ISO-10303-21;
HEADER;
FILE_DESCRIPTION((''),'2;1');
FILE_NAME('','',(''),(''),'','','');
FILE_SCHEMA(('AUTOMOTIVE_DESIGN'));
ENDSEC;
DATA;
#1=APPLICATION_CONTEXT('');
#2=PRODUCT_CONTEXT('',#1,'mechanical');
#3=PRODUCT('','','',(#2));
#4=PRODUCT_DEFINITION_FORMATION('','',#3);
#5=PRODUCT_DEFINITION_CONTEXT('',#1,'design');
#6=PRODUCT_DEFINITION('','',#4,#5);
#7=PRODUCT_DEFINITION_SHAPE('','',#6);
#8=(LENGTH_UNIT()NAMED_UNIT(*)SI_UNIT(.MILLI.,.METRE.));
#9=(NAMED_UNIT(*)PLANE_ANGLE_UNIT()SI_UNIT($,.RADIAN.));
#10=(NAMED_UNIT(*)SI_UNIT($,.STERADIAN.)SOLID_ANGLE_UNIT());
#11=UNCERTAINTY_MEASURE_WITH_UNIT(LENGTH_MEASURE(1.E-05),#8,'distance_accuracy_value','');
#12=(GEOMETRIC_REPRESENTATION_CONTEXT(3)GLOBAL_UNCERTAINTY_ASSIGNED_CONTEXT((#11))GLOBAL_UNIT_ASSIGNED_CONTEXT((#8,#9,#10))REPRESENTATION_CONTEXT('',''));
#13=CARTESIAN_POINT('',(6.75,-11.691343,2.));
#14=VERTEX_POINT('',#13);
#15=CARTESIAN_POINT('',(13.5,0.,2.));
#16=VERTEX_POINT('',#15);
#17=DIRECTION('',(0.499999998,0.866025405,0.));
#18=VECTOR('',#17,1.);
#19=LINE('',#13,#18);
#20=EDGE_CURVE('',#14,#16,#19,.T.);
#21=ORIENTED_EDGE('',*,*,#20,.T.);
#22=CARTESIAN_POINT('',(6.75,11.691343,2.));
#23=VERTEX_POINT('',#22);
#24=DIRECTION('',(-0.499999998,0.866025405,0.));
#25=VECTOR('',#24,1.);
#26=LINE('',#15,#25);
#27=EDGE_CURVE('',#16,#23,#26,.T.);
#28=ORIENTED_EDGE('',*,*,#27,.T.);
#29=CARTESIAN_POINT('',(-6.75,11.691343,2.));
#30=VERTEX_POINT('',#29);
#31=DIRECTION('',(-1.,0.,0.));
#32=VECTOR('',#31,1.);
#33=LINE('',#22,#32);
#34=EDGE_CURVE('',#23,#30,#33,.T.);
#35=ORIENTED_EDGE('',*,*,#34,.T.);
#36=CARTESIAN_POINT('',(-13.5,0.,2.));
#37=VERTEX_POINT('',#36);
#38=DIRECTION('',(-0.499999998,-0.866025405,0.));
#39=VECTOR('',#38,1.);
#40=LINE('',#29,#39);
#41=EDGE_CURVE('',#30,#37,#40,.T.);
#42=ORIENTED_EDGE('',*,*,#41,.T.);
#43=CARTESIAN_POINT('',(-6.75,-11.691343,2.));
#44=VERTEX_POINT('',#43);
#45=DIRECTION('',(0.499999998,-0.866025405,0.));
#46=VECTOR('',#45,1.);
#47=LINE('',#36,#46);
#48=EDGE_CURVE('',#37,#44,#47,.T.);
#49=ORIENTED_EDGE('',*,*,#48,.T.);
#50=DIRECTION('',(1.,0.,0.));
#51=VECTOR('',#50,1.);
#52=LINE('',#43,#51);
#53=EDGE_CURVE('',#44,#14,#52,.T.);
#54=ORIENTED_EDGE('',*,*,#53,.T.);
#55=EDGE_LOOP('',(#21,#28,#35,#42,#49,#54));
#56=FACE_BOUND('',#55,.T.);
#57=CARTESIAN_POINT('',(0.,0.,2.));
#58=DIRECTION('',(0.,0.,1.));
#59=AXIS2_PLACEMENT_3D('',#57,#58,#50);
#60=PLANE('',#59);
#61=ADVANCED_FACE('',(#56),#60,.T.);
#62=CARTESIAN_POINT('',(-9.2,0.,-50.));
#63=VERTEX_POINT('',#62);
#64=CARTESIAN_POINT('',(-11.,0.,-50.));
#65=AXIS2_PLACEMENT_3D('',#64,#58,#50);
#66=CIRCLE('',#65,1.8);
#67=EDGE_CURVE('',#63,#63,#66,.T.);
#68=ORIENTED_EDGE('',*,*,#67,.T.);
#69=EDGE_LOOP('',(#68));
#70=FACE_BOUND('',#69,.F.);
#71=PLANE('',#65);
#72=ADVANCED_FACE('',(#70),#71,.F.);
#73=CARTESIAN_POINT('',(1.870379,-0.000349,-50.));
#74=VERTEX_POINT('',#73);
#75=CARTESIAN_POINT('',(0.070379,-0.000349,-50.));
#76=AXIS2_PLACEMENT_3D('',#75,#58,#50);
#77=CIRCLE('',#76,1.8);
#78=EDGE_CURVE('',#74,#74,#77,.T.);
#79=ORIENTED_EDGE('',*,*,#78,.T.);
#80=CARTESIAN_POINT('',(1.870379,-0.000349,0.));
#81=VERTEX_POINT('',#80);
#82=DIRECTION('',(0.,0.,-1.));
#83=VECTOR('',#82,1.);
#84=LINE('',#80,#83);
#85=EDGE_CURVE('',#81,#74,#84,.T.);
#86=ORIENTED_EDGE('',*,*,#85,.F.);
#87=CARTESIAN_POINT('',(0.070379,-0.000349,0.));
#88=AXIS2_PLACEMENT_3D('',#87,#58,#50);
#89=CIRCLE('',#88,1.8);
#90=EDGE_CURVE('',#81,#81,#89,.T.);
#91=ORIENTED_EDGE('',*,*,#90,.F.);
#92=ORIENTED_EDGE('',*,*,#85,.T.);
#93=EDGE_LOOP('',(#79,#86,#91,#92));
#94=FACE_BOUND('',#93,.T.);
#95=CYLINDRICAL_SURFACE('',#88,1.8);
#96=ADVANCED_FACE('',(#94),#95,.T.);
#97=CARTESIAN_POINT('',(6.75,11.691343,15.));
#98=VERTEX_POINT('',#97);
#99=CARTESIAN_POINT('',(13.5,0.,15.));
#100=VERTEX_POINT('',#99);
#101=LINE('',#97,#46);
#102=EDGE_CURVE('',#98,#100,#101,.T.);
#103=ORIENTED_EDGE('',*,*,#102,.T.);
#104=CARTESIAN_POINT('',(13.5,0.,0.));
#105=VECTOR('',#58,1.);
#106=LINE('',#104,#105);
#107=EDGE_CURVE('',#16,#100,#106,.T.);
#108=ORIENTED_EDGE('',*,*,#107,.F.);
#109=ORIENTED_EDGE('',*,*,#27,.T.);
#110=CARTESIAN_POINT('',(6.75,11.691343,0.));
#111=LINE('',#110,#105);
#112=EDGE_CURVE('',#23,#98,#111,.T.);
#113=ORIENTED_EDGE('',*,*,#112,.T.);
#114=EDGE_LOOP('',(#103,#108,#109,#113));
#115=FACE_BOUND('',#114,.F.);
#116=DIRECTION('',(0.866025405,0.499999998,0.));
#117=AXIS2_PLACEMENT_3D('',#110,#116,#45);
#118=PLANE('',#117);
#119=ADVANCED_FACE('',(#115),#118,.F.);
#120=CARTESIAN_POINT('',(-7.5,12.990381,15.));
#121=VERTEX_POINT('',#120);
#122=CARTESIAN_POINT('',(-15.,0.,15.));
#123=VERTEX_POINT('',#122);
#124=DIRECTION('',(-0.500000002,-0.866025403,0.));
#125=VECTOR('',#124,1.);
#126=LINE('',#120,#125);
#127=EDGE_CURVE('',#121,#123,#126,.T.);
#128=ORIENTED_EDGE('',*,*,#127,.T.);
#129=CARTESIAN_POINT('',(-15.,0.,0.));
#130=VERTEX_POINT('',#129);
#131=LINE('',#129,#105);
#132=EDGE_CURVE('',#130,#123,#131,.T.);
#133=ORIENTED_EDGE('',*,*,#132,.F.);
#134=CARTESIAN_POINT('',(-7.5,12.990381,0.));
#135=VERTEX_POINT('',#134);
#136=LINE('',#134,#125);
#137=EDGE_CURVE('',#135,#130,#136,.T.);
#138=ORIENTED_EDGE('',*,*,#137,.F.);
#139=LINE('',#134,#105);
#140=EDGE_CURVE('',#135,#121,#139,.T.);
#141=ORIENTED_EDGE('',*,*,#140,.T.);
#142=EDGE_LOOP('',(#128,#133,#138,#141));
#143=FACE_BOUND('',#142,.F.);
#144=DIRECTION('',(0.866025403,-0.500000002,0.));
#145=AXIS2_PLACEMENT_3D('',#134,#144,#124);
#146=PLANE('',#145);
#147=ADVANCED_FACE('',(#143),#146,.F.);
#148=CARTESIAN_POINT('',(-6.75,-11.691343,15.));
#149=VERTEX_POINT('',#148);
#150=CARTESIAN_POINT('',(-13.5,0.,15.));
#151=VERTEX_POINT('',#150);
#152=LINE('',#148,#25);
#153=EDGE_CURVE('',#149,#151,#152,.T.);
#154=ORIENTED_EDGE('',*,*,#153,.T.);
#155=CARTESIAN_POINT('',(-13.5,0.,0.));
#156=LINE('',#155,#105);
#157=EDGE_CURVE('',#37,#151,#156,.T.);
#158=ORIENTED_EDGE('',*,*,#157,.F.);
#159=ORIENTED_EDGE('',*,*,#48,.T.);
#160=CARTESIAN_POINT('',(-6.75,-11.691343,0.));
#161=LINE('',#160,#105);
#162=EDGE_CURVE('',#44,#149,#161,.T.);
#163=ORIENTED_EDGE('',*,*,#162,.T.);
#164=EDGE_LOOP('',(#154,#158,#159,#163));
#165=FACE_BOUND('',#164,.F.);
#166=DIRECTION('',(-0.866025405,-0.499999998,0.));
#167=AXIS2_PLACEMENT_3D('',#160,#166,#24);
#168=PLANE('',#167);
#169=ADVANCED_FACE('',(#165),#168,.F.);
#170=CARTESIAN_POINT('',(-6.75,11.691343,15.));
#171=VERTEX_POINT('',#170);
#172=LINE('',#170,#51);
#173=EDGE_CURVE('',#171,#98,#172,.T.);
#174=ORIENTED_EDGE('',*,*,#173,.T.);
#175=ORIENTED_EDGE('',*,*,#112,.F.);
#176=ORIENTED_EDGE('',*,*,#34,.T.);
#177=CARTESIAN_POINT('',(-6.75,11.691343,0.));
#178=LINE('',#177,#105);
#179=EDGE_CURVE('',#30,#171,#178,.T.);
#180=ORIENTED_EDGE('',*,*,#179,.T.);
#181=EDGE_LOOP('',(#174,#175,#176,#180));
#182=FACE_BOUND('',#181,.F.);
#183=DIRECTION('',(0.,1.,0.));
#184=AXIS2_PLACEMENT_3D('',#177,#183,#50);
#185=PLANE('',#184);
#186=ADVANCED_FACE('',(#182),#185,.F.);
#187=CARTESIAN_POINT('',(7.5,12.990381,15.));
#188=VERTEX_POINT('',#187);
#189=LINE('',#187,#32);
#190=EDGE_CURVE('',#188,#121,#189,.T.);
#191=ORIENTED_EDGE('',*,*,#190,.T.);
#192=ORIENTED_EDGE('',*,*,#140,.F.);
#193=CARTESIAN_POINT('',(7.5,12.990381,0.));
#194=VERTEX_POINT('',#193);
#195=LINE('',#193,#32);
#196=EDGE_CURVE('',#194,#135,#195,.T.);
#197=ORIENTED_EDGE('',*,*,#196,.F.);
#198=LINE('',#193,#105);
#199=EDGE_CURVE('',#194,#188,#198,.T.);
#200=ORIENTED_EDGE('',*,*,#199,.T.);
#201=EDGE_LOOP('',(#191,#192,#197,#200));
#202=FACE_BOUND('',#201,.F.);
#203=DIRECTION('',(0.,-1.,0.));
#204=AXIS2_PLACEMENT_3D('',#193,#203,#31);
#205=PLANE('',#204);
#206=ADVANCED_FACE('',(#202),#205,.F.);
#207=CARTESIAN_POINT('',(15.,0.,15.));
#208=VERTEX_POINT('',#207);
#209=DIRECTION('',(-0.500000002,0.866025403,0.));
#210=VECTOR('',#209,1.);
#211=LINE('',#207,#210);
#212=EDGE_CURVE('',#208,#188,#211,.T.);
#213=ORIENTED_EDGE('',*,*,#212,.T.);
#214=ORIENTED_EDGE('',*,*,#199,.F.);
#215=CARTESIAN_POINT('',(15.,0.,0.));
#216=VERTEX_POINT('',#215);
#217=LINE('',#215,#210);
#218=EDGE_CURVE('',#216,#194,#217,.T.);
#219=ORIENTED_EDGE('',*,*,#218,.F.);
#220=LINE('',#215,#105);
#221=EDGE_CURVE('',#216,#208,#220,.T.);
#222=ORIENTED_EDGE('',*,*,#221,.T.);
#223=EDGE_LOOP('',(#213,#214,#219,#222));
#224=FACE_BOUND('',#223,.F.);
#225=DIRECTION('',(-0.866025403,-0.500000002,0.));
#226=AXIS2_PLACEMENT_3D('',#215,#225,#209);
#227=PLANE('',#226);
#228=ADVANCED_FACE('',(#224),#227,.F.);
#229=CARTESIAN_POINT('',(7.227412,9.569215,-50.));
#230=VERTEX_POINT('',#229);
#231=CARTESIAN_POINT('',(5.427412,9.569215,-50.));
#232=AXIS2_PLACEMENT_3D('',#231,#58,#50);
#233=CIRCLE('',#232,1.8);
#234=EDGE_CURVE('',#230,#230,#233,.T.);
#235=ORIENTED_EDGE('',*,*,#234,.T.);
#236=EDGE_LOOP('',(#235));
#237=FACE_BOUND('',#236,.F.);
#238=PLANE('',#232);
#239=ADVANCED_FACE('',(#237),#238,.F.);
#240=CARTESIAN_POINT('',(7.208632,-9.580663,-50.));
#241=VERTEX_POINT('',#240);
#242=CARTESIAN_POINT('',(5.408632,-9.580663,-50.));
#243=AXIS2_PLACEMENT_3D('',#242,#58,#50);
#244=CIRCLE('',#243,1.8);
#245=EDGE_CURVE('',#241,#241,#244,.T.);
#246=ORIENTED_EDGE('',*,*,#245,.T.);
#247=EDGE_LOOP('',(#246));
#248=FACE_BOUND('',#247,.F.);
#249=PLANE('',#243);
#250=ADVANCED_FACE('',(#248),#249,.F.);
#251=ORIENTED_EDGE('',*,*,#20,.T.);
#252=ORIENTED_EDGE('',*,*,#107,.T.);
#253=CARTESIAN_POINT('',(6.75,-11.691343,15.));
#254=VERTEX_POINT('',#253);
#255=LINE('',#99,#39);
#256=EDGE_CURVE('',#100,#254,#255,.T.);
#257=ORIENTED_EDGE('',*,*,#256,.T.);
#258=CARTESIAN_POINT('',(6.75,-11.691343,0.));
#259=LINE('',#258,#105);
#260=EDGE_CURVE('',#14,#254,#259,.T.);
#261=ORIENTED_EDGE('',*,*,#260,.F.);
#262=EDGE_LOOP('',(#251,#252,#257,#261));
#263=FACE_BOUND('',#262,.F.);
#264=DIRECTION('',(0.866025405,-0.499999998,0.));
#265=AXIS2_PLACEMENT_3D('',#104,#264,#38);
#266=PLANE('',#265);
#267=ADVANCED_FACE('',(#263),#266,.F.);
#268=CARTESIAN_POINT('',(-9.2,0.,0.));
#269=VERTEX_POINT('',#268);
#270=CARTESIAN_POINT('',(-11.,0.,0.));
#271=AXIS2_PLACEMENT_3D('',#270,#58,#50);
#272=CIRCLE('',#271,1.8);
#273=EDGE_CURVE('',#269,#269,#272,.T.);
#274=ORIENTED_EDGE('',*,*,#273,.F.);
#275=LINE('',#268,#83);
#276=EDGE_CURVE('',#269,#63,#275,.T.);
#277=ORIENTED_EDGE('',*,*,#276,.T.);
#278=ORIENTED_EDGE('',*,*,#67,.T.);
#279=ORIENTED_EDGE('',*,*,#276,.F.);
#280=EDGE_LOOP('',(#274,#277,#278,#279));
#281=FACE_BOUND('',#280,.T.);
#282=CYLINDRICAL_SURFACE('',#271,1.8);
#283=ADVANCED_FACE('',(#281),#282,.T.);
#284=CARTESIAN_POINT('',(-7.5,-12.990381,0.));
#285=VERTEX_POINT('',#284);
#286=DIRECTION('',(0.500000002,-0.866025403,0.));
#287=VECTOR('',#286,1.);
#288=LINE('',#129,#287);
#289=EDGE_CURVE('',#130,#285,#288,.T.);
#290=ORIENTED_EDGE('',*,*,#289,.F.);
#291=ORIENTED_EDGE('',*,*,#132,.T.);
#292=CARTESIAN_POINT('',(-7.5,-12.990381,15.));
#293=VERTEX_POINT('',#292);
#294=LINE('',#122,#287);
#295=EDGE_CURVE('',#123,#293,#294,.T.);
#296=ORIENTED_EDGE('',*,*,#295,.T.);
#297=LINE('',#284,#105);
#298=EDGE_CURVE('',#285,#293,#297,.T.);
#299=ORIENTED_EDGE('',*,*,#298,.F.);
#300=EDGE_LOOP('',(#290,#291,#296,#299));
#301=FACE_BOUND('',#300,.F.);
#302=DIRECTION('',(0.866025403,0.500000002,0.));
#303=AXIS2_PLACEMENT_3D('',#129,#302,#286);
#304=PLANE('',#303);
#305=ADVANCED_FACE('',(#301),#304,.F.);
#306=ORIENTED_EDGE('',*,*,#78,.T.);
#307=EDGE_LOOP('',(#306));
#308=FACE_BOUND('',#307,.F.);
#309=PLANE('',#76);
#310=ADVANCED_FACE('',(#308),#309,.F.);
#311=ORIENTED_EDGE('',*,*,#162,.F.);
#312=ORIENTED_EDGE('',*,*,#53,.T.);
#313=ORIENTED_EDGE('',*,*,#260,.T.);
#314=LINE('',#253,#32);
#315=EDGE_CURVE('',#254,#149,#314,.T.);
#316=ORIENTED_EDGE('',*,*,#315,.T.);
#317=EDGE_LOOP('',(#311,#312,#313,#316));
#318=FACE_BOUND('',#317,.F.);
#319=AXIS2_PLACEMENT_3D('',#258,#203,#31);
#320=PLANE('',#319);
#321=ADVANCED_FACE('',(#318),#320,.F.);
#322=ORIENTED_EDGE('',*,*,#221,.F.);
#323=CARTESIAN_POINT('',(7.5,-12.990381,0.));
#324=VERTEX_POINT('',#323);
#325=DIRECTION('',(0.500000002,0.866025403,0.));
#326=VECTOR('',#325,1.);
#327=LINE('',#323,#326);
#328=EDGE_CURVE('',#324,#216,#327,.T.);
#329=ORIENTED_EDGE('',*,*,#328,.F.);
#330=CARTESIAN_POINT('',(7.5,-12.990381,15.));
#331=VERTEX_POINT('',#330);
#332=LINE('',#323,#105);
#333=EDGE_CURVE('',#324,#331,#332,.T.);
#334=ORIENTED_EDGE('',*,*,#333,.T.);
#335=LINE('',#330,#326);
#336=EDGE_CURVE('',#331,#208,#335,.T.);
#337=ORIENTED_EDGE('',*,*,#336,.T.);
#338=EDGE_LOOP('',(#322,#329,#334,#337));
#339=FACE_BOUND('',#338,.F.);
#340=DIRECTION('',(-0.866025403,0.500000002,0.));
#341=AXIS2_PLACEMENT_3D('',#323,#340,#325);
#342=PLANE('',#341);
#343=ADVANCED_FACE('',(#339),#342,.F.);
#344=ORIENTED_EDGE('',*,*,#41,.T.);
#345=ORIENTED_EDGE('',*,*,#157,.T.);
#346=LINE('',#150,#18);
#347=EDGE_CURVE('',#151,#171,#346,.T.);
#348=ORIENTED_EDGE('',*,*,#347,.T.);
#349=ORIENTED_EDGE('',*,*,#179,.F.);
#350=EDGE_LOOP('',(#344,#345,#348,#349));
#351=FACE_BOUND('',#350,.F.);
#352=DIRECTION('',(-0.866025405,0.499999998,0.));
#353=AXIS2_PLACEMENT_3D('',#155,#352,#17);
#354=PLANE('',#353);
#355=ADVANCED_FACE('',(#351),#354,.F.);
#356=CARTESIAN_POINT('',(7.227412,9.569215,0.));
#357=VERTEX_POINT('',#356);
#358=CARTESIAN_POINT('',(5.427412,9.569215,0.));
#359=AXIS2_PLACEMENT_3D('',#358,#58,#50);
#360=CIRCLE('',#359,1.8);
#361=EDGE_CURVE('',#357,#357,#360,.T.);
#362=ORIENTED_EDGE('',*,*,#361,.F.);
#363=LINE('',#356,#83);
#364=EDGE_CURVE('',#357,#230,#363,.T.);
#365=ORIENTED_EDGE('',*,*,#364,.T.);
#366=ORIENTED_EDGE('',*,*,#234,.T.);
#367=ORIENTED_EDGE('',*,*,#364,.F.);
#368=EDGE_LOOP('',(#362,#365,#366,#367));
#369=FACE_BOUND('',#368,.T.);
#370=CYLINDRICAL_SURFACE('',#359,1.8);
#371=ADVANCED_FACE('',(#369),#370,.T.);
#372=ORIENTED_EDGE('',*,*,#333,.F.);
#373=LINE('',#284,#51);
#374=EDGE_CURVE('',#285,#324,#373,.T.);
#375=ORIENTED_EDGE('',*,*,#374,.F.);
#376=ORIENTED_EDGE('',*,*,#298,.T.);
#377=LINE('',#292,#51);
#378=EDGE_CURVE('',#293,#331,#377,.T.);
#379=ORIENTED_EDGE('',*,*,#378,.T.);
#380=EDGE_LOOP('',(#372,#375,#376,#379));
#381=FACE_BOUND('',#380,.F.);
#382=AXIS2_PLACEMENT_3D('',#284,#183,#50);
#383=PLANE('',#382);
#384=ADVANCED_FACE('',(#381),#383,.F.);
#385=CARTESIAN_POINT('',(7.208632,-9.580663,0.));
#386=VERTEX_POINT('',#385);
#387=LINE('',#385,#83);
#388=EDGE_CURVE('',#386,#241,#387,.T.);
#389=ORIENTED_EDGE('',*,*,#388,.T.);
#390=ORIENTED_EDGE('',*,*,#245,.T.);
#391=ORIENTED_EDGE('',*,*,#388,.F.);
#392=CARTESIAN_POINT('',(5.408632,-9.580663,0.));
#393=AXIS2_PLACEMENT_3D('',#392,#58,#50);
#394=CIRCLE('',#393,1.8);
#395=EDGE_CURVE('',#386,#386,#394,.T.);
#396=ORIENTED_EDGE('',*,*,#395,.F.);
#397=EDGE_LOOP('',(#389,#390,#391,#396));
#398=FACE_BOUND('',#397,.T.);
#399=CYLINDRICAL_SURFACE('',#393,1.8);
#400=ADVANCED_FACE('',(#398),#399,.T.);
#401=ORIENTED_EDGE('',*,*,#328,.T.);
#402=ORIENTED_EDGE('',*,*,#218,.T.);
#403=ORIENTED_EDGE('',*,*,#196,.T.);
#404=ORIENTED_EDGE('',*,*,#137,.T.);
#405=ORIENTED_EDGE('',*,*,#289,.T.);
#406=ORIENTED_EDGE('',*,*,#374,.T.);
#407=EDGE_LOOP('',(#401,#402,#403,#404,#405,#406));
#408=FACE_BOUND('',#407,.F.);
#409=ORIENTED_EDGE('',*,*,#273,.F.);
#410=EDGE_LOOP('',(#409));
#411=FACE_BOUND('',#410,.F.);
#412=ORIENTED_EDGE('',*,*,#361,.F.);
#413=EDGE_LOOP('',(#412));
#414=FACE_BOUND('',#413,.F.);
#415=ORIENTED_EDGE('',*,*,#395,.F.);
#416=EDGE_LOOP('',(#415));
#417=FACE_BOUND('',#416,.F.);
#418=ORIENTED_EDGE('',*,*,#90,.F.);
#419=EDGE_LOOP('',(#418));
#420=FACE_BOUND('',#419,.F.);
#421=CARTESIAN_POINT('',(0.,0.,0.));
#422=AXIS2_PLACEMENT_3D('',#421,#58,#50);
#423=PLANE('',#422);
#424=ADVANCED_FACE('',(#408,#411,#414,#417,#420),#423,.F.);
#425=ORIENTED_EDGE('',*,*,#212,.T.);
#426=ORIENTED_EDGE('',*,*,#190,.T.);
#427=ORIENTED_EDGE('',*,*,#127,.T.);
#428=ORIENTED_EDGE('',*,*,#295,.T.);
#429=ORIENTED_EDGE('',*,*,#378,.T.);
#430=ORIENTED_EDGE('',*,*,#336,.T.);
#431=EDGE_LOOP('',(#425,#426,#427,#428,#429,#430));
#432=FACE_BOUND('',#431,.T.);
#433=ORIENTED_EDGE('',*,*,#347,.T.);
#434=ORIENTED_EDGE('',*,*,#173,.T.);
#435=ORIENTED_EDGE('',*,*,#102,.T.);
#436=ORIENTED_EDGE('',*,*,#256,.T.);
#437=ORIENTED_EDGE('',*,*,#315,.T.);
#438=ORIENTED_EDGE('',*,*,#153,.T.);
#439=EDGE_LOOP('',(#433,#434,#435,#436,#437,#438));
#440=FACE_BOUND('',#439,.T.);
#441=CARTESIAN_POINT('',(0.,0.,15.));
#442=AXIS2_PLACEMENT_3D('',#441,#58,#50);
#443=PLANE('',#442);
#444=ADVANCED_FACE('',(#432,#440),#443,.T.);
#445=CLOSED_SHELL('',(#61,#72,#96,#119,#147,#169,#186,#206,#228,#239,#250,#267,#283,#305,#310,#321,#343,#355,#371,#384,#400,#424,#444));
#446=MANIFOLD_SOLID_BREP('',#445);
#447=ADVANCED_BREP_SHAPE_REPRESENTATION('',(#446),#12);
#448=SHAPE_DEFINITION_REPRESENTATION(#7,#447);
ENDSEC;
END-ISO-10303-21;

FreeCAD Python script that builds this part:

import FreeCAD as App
import Part
import Sketcher
Q = App.Units.Quantity


def add_polygon(sketch, points):
    """Adds a closed chain of lines whose ends are joined by coincident constraints."""
    first, n = sketch.GeometryCount, len(points)
    for a, b in zip(points, points[1:] + points[:1]):
        sketch.addGeometry(Part.LineSegment(App.Vector(*a, 0), App.Vector(*b, 0)), False)
    for i in range(n):
        sketch.addConstraint(Sketcher.Constraint("Coincident", first + i, 2, first + (i + 1) % n, 1))

doc = App.newDocument("Part")
body = doc.addObject("PartDesign::Body", "Body")

# Sketch on XY plane
sketch1 = body.newObject("Sketcher::SketchObject", "Sketch")
sketch1.AttachmentSupport = (doc.getObject("XY_Plane"), [""])
sketch1.MapMode = "FlatFace"
add_polygon(sketch1, [(7.5, -12.990381), (15, 0), (7.5, 12.990381), (-7.5, 12.990381), (-15, 0), (-7.5, -12.990381)])  # lines 0-5
add_polygon(sketch1, [(-6.75, 11.691343), (6.75, 11.691343), (13.5, 0), (6.75, -11.691343), (-6.75, -11.691343), (-13.5, 0)])  # lines 6-11
sketch1.addConstraint([
    Sketcher.Constraint("Horizontal", 2),
    Sketcher.Constraint("Horizontal", 5),
    Sketcher.Constraint("Horizontal", 6),
    Sketcher.Constraint("Horizontal", 9),
    Sketcher.Constraint("Symmetric", 0, 2, 3, 2, -1, 1),
    Sketcher.Constraint("Symmetric", 1, 2, 4, 2, -1, 1),
    Sketcher.Constraint("Symmetric", 6, 2, 9, 2, -1, 1),
    Sketcher.Constraint("Symmetric", 7, 2, 10, 2, -1, 1),
    Sketcher.Constraint("PointOnObject", 0, 2, -1),
    Sketcher.Constraint("PointOnObject", 7, 2, -1),
    Sketcher.Constraint("Parallel", 0, 3),
    Sketcher.Constraint("Parallel", 4, 7),
    Sketcher.Constraint("Parallel", 3, 8),
    Sketcher.Constraint("Parallel", 8, 11),
    Sketcher.Constraint("Vertical", 2, 2, 4, 2),
    Sketcher.Constraint("DistanceX", 2, 2, 2, 1, Q("15 mm")),
    Sketcher.Constraint("Angle", 0, Q("60 deg")),
    Sketcher.Constraint("Distance", 0, Q("15 mm")),
    Sketcher.Constraint("DistanceX", 6, 1, 6, 2, Q("13.5 mm")),
    Sketcher.Constraint("DistanceX", 1, 2, 7, 2, Q("6 mm")),
])
pad1 = body.newObject("PartDesign::Pad", "Pad")
pad1.Profile = sketch1
pad1.Length = 15

# Sketch on XY plane
sketch2 = body.newObject("Sketcher::SketchObject", "Sketch001")
sketch2.AttachmentSupport = (doc.getObject("XY_Plane"), [""])
sketch2.MapMode = "FlatFace"
add_polygon(sketch2, [(6.75, -11.691343), (13.5, 0), (6.75, 11.691343), (-6.75, 11.691343), (-13.5, 0), (-6.75, -11.691343)])  # lines 0-5
sketch2.addConstraint([
    Sketcher.Constraint("Horizontal", 2),
    Sketcher.Constraint("Horizontal", 5),
    Sketcher.Constraint("Symmetric", 0, 2, 3, 2, -1, 1),
    Sketcher.Constraint("Symmetric", 1, 2, 4, 2, -1, 1),
    Sketcher.Constraint("PointOnObject", 0, 2, -1),
    Sketcher.Constraint("Parallel", 0, 3),
    Sketcher.Constraint("Vertical", 2, 2, 4, 2),
    Sketcher.Constraint("Angle", 0, Q("60 deg")),
    Sketcher.Constraint("DistanceX", 2, 2, 2, 1, Q("13.5 mm")),
    Sketcher.Constraint("DistanceX", 3, 2, 0, 2, Q("27 mm")),
])
pad2 = body.newObject("PartDesign::Pad", "Pad001")
pad2.Profile = sketch2
pad2.Length = 2

# Sketch on XY plane
sketch3 = body.newObject("Sketcher::SketchObject", "Sketch002")
sketch3.AttachmentSupport = (doc.getObject("XY_Plane"), [""])
sketch3.MapMode = "FlatFace"
sketch3.addGeometry([
    Part.Circle(App.Vector(-11, 0, 0), App.Vector(0, 0, 1), 1.8),
    Part.Circle(App.Vector(5.427412, 9.569215, 0), App.Vector(0, 0, 1), 1.8),
    Part.Circle(App.Vector(5.408632, -9.580663, 0), App.Vector(0, 0, 1), 1.8),
    Part.Circle(App.Vector(0.070379, -0.000349, 0), App.Vector(0, 0, 1), 1.8),
], False)
sketch3.addConstraint([
    Sketcher.Constraint("Equal", 0, 1),
    Sketcher.Constraint("Equal", 1, 2),
    Sketcher.Constraint("Equal", 2, 3),
    Sketcher.Constraint("PointOnObject", 0, 3, -1),
    Sketcher.Constraint("Diameter", 0, Q("3.6 mm")),
    Sketcher.Constraint("DistanceX", 0, 3, -1, 1, Q("11 mm")),
    Sketcher.Constraint("DistanceX", -1, 1, 3, 3, Q("0.070379 mm")),
    Sketcher.Constraint("DistanceY", 3, 3, -1, 1, Q("0.000349 mm")),
    Sketcher.Constraint("DistanceX", 2, 3, 1, 3, Q("0.01878 mm")),
    Sketcher.Constraint("DistanceY", 2, 3, 1, 3, Q("19.149878 mm")),
    Sketcher.Constraint("DistanceX", -1, 1, 1, 3, Q("5.427412 mm")),
    Sketcher.Constraint("DistanceY", -1, 1, 1, 3, Q("9.569215 mm")),
])
pad3 = body.newObject("PartDesign::Pad", "Pad002")
pad3.Profile = sketch3
pad3.Length = 50
pad3.Reversed = True

doc.recompute()
